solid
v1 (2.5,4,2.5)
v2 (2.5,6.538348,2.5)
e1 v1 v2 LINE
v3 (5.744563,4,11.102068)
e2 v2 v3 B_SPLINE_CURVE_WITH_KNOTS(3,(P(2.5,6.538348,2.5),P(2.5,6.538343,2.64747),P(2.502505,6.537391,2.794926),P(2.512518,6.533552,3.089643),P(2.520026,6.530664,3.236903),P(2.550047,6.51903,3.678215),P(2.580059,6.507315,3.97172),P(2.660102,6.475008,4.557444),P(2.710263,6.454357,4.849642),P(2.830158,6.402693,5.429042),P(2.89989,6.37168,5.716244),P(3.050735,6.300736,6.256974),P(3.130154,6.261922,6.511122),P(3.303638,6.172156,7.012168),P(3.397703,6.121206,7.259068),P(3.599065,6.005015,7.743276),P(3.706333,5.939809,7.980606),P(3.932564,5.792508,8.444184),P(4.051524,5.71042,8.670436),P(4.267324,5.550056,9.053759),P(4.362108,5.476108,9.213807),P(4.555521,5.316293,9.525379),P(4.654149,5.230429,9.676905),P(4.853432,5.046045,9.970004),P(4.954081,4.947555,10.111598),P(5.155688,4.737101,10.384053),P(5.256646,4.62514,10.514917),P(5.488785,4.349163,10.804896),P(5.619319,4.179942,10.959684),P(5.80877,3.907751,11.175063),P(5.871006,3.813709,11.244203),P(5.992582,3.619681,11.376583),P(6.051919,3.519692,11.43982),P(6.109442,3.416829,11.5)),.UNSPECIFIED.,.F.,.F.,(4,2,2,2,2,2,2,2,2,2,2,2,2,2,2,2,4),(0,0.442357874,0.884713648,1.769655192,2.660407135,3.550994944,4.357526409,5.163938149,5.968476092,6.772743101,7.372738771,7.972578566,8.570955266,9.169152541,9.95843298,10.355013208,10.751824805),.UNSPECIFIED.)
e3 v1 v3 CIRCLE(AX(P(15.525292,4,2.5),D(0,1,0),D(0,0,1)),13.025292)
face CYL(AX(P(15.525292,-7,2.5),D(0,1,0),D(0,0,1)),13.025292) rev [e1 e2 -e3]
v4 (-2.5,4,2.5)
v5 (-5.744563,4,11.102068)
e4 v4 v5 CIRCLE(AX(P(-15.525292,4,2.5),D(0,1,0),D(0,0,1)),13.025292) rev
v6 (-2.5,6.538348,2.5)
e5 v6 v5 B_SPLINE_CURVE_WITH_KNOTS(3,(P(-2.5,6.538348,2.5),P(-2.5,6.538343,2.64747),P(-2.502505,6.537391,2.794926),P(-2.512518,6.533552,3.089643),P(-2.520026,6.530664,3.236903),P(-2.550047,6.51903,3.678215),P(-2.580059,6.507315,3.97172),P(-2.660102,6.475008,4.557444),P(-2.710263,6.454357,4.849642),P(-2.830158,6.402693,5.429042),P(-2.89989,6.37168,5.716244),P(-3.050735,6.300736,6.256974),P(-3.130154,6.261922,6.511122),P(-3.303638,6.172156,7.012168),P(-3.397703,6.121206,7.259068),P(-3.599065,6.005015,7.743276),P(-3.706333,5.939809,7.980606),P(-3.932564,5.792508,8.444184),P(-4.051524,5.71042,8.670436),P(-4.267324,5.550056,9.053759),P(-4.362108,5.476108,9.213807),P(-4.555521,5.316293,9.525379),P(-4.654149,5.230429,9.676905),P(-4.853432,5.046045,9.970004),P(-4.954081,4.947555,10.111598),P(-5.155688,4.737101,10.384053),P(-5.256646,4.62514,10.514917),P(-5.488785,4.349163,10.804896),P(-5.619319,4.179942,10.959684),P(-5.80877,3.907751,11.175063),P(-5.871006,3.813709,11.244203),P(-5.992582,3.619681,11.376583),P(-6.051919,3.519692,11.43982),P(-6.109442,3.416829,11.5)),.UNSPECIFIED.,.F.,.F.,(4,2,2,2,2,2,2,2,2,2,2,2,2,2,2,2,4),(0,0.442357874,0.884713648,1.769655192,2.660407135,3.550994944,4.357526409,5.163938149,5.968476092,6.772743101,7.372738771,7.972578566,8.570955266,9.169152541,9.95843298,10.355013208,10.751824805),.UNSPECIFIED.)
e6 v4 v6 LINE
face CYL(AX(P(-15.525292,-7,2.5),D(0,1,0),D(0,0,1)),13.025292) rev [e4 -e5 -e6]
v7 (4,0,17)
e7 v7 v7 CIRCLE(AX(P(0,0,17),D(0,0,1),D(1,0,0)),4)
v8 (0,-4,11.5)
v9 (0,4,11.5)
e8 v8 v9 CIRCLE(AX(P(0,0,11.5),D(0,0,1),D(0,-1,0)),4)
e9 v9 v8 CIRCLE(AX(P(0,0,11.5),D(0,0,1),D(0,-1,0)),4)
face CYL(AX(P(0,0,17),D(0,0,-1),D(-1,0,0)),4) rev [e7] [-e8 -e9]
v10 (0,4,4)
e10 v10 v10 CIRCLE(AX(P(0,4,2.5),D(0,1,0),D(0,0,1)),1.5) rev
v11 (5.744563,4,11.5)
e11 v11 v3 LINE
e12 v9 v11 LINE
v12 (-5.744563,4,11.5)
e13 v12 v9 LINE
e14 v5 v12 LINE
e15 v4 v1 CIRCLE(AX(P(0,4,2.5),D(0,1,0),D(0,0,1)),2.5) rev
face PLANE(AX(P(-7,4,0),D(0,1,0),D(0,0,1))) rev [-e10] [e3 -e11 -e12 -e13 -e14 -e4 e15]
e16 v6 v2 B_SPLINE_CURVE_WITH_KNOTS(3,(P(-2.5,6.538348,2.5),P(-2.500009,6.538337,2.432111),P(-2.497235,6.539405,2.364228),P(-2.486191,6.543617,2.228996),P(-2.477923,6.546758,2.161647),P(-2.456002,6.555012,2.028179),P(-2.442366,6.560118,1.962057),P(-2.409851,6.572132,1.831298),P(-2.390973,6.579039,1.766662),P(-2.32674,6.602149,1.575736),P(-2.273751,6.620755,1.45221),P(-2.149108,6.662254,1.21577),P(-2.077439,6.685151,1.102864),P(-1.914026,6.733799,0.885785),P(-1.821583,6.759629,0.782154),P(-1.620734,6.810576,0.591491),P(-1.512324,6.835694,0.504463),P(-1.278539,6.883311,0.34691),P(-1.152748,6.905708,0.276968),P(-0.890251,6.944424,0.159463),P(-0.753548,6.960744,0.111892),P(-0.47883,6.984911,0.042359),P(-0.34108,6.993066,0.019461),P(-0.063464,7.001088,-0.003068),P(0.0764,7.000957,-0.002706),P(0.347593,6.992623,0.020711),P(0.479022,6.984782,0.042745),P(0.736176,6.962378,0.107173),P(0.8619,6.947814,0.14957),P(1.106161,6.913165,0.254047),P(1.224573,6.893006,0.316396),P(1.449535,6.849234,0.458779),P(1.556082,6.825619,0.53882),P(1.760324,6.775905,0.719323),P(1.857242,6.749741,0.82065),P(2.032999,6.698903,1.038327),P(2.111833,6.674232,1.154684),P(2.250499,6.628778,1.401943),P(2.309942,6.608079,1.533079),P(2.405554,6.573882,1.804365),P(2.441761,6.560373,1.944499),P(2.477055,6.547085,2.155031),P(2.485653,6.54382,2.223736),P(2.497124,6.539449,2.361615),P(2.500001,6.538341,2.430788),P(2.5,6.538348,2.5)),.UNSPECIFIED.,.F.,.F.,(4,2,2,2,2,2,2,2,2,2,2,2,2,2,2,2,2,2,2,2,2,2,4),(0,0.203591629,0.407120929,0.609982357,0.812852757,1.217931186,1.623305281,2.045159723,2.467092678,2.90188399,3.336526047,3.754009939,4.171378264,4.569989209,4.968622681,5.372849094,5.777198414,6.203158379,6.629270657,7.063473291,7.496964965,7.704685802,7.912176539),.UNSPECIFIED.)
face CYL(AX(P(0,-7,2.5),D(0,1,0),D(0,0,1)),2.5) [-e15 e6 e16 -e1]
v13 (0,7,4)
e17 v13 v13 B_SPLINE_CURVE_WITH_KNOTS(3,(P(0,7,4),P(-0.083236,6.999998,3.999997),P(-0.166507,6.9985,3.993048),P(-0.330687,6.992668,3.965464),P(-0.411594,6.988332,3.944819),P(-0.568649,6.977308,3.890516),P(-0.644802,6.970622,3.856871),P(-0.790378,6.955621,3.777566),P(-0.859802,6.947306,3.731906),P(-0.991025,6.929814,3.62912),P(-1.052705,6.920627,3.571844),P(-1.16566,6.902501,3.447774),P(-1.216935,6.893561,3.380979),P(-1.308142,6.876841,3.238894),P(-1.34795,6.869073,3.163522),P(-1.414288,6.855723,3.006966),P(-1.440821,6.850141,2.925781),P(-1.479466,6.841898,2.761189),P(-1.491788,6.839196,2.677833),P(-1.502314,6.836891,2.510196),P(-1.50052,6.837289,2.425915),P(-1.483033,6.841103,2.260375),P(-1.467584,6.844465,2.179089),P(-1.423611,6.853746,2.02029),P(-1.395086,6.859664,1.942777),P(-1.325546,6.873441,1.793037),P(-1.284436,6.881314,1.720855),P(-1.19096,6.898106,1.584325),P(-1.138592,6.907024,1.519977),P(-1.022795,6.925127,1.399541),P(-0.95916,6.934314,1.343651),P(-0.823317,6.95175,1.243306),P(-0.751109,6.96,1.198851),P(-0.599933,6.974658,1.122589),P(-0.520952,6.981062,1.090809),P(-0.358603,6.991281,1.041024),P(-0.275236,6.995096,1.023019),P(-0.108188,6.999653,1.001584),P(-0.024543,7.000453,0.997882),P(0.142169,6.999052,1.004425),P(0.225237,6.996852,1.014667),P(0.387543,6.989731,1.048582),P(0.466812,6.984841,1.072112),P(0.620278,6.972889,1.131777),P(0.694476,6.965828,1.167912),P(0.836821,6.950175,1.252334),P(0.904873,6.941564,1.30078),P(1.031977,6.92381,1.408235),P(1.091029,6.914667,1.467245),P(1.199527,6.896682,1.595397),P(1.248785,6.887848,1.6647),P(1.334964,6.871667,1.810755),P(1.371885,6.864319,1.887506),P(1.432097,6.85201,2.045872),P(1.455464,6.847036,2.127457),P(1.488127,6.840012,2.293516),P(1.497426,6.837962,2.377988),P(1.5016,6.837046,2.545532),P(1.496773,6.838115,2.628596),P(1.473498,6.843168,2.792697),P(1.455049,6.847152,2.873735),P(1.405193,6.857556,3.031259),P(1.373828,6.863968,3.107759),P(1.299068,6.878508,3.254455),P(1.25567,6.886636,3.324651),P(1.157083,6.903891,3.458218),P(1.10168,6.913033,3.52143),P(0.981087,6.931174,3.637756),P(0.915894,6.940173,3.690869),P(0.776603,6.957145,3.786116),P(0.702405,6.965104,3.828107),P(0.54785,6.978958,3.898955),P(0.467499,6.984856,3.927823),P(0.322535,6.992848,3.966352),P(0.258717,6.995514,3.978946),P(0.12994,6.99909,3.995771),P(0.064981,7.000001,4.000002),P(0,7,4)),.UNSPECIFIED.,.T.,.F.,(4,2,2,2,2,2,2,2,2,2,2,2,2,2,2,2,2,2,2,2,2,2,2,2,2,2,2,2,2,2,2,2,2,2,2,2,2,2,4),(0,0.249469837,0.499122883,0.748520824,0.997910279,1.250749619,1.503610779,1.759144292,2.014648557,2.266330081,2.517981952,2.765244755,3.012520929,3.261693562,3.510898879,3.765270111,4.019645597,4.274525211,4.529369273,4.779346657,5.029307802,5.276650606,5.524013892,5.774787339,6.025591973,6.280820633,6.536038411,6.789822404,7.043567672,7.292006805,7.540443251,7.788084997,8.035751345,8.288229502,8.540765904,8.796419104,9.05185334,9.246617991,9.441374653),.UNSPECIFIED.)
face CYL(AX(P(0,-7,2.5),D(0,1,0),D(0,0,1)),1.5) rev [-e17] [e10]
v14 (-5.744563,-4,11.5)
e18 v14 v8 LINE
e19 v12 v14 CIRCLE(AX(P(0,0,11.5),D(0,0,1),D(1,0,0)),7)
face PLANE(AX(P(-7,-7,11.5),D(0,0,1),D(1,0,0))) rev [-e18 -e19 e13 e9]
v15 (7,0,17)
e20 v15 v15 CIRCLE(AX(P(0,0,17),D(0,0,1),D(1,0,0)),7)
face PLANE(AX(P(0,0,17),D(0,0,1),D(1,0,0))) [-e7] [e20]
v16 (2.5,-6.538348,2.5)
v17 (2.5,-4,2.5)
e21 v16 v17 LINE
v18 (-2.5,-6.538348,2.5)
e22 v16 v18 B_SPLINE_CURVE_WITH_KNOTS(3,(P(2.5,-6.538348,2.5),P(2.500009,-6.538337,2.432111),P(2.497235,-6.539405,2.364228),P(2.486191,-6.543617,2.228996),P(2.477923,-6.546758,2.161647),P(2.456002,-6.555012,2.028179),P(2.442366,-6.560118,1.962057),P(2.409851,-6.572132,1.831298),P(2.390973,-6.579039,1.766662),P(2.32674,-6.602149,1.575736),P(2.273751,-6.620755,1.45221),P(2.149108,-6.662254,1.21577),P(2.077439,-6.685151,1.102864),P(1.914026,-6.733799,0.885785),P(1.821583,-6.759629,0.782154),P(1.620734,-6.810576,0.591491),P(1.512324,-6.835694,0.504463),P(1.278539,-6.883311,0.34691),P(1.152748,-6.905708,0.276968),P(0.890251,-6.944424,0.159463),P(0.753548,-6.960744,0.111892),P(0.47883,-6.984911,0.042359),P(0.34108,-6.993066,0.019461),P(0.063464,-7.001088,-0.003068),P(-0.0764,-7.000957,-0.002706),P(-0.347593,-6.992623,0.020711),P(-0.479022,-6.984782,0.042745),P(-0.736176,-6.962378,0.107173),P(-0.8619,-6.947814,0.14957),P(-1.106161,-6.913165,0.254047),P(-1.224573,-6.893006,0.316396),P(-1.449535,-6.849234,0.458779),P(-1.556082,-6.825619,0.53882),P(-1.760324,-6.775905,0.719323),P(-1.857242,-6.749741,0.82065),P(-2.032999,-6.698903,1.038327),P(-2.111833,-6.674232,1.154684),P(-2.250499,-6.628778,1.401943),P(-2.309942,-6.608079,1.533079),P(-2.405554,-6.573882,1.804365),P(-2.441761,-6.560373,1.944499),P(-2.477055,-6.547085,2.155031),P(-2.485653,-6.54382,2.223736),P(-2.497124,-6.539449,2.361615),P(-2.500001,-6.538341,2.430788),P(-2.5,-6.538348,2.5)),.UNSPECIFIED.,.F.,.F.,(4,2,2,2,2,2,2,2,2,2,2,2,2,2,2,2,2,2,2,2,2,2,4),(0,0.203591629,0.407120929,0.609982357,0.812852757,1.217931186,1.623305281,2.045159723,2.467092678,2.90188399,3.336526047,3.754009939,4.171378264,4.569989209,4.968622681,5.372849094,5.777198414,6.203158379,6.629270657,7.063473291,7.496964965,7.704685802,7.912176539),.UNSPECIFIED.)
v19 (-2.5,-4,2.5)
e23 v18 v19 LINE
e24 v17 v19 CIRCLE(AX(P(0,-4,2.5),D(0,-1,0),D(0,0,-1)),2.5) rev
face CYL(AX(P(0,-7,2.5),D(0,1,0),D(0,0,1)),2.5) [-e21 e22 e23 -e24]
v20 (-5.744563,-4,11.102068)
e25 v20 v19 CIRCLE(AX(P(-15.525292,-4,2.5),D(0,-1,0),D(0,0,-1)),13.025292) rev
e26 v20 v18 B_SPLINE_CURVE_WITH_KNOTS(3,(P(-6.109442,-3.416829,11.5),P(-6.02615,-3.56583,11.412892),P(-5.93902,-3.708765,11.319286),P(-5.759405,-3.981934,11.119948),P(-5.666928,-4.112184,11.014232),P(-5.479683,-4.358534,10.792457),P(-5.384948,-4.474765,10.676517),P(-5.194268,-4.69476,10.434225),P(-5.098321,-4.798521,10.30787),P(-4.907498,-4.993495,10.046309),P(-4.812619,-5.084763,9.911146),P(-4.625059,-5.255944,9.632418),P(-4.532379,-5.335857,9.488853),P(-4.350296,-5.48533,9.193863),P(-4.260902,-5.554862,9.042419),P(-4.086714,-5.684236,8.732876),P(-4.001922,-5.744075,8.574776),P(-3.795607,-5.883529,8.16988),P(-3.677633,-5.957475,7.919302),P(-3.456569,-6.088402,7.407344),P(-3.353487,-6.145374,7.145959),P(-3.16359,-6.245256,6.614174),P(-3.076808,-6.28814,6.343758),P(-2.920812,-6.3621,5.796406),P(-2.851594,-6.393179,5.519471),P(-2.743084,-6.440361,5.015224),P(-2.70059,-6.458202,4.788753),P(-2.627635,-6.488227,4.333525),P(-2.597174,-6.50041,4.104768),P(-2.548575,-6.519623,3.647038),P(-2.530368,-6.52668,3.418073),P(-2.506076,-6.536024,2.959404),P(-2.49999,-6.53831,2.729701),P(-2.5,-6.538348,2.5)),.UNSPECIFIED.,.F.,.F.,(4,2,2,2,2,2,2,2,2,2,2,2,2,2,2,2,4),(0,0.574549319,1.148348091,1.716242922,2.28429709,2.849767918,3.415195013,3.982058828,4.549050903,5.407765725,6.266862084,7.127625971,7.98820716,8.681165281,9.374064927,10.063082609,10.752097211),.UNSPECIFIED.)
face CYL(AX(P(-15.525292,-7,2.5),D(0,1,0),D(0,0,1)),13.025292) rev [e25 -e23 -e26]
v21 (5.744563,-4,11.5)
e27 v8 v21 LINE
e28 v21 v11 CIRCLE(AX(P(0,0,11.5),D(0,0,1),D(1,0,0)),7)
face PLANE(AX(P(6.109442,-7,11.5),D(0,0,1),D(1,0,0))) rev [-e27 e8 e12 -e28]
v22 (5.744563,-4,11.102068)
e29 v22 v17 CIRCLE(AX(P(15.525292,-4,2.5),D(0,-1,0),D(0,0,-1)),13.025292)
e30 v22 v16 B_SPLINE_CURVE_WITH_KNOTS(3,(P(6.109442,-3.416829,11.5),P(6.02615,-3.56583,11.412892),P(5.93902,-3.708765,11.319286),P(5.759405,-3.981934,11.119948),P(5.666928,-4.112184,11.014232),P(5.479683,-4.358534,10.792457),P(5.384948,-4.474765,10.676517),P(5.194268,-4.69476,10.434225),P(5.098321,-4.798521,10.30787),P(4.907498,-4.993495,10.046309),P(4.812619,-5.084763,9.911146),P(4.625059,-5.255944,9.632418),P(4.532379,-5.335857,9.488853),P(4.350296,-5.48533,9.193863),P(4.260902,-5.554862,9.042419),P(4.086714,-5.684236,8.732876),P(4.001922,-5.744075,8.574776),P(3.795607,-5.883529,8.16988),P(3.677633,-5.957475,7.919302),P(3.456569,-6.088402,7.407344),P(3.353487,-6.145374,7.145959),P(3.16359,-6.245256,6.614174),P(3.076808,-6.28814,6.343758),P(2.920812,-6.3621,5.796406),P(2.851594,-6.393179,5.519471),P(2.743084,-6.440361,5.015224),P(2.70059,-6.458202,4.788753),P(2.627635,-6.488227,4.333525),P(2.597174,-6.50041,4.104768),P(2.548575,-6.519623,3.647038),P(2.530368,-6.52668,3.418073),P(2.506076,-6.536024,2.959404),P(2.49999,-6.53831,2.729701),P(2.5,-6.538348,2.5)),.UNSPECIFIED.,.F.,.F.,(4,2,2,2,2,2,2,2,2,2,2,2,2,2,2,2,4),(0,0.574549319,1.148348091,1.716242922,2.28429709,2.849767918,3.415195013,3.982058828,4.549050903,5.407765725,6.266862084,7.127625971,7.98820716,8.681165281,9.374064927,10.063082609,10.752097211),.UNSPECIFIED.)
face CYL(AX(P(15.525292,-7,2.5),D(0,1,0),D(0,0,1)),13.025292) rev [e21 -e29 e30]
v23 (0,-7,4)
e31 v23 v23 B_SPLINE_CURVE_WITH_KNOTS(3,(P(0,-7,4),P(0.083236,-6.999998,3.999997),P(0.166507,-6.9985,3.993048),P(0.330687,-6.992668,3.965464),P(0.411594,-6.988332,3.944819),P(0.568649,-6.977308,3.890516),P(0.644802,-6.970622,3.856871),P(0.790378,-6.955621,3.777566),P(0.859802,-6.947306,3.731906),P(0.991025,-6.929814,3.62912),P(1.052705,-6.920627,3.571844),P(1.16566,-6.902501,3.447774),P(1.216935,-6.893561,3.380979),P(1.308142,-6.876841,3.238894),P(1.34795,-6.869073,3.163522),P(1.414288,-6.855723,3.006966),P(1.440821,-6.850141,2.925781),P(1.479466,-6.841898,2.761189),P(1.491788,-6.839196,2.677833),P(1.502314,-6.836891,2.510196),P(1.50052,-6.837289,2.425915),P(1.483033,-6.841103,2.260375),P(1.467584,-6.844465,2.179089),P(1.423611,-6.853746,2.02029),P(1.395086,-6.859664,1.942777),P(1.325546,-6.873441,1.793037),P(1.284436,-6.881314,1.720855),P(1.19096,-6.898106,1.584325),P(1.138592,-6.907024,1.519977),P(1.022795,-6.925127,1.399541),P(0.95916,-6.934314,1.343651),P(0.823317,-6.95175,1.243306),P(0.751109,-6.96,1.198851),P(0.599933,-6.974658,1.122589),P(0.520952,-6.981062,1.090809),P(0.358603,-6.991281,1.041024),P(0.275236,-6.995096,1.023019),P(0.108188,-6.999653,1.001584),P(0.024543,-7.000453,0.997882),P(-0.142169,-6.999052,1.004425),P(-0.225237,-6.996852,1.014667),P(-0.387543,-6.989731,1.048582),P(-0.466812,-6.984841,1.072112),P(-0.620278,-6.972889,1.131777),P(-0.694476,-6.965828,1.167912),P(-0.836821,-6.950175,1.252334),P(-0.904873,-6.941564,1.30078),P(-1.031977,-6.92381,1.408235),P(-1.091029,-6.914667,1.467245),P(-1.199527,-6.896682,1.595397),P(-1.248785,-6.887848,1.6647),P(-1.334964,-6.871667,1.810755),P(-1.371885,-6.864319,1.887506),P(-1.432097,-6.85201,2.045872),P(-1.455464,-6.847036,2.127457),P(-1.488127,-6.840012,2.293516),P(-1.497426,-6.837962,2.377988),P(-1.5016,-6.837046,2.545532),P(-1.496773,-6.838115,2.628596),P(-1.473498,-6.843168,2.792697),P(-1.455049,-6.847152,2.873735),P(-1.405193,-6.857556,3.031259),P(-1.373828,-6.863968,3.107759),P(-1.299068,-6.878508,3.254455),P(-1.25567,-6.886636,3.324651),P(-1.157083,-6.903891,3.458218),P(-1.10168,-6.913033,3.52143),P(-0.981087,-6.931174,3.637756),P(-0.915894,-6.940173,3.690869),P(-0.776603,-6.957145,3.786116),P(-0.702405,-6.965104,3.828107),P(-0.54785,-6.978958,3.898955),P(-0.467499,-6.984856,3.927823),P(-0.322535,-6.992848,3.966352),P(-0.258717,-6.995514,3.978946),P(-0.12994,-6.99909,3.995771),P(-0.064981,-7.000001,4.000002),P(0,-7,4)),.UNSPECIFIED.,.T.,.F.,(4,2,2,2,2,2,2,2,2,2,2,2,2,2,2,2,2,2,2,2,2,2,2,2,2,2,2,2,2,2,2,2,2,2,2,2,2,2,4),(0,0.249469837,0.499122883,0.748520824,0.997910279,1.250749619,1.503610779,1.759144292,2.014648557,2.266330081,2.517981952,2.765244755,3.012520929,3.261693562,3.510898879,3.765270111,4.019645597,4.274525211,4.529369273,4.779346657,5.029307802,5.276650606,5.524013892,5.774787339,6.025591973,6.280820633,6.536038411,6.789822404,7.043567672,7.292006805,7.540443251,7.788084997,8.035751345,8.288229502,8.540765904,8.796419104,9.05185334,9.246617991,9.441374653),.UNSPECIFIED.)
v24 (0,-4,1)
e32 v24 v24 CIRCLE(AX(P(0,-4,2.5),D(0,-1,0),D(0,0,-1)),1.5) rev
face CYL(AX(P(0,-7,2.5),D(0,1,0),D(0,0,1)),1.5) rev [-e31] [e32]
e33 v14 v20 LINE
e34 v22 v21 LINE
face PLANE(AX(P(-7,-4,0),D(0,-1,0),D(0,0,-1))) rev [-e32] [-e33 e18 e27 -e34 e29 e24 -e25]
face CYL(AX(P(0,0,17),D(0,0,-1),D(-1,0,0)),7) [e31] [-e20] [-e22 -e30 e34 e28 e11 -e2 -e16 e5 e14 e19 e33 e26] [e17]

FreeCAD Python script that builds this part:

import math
import FreeCAD as App
import Part
import Sketcher


def add_polygon(sketch, points):
    """Adds a closed chain of lines whose ends are joined by coincident constraints."""
    first, n = sketch.GeometryCount, len(points)
    for a, b in zip(points, points[1:] + points[:1]):
        sketch.addGeometry(Part.LineSegment(App.Vector(*a, 0), App.Vector(*b, 0)), False)
    for i in range(n):
        sketch.addConstraint(Sketcher.Constraint("Coincident", first + i, 2, first + (i + 1) % n, 1))

doc = App.newDocument("Part")
body = doc.addObject("PartDesign::Body", "Body")

# Sketch on XY plane
sketch1 = doc.addObject("Sketcher::SketchObject", "Sketch")
body.addObject(sketch1)
sketch1.AttachmentSupport = (doc.XY_Plane, [""])
sketch1.MapMode = "FlatFace"
sketch1.addGeometry(Part.Circle(App.Vector(0, 0, 0), App.Vector(0, 0, 1), 7), False)
sketch1.addGeometry(Part.Circle(App.Vector(0, 0, 0), App.Vector(0, 0, 1), 4), False)
sketch1.addConstraint(Sketcher.Constraint("Coincident", 0, 3, -1, 1))
sketch1.addConstraint(Sketcher.Constraint("Coincident", 1, 3, -1, 1))
sketch1.addConstraint(Sketcher.Constraint("Diameter", 0, 14.0))
sketch1.addConstraint(Sketcher.Constraint("Diameter", 1, 8.0))
pad1 = doc.addObject("PartDesign::Pad", "Pad")
body.addObject(pad1)
pad1.Profile = sketch1
pad1.Length = 17

# Sketch on XZ plane
sketch2 = doc.addObject("Sketcher::SketchObject", "Sketch001")
body.addObject(sketch2)
sketch2.AttachmentSupport = (doc.XZ_Plane, [""])
sketch2.MapMode = "FlatFace"
sketch2.addGeometry(Part.Circle(App.Vector(0, 2.5, 0), App.Vector(0, 0, 1), 1.5), False)
sketch2.addGeometry(Part.LineSegment(App.Vector(-7, 0, 0), App.Vector(-7, 11.5, 0)), False)
sketch2.addGeometry(Part.LineSegment(App.Vector(-7, 11.5, 0), App.Vector(-6.1, 11.5, 0)), False)
sketch2.addGeometry(Part.ArcOfCircle(Part.Circle(App.Vector(-15.5, 2.5, 0), App.Vector(0, 0, 1), 13), math.radians(0), math.radians(44)), False)
sketch2.addGeometry(Part.ArcOfCircle(Part.Circle(App.Vector(0, 2.5, 0), App.Vector(0, 0, 1), 2.5), math.radians(180), math.radians(360)), False)
sketch2.addGeometry(Part.ArcOfCircle(Part.Circle(App.Vector(15.5, 2.5, 0), App.Vector(0, 0, 1), 13), math.radians(136), math.radians(180)), False)
sketch2.addGeometry(Part.LineSegment(App.Vector(6.1, 11.5, 0), App.Vector(7, 11.5, 0)), False)
sketch2.addGeometry(Part.LineSegment(App.Vector(7, 11.5, 0), App.Vector(7, 0, 0)), False)
sketch2.addGeometry(Part.LineSegment(App.Vector(7, 0, 0), App.Vector(0, -1, 0)), False)
sketch2.addGeometry(Part.LineSegment(App.Vector(0, -1, 0), App.Vector(-7, 0, 0)), False)
sketch2.addConstraint(Sketcher.Constraint("Coincident", 1, 2, 2, 1))
sketch2.addConstraint(Sketcher.Constraint("Coincident", 2, 2, 3, 2))
sketch2.addConstraint(Sketcher.Constraint("Tangent", 3, 1, 4, 1))
sketch2.addConstraint(Sketcher.Constraint("Tangent", 4, 2, 5, 2))
sketch2.addConstraint(Sketcher.Constraint("Coincident", 5, 1, 6, 1))
sketch2.addConstraint(Sketcher.Constraint("Coincident", 6, 2, 7, 1))
sketch2.addConstraint(Sketcher.Constraint("Coincident", 7, 2, 8, 1))
sketch2.addConstraint(Sketcher.Constraint("Coincident", 8, 2, 9, 1))
sketch2.addConstraint(Sketcher.Constraint("Coincident", 9, 2, 1, 1))
sketch2.addConstraint(Sketcher.Constraint("Vertical", 1))
sketch2.addConstraint(Sketcher.Constraint("Horizontal", 2))
sketch2.addConstraint(Sketcher.Constraint("Horizontal", 6))
sketch2.addConstraint(Sketcher.Constraint("Vertical", 7))
sketch2.addConstraint(Sketcher.Constraint("Coincident", 4, 3, 0, 3))
sketch2.addConstraint(Sketcher.Constraint("Equal", 3, 5))
sketch2.addConstraint(Sketcher.Constraint("Symmetric", 7, 2, 9, 2, -1, 1))
sketch2.addConstraint(Sketcher.Constraint("Symmetric", 3, 3, 5, 3, -2))
sketch2.addConstraint(Sketcher.Constraint("PointOnObject", 7, 2, -1))
sketch2.addConstraint(Sketcher.Constraint("PointOnObject", 8, 2, -2))
sketch2.addConstraint(Sketcher.Constraint("Horizontal", 0, 3, 3, 3))
sketch2.addConstraint(Sketcher.Constraint("Horizontal", 2, 2, 5, 1))
sketch2.addConstraint(Sketcher.Constraint("Diameter", 0, 3.0))
sketch2.addConstraint(Sketcher.Constraint("Radius", 4, 2.5))
sketch2.addConstraint(Sketcher.Constraint("DistanceY", 1, 1, 1, 2, 11.5))
sketch2.addConstraint(Sketcher.Constraint("DistanceX", 1, 2, -1, 1, 7.0))
sketch2.addConstraint(Sketcher.Constraint("DistanceY", 8, 2, -1, 1, 1.0))
sketch2.addConstraint(Sketcher.Constraint("DistanceY", 0, 3, 1, 2, 9.0))
sketch2.addConstraint(Sketcher.Constraint("Radius", 3, 13.025292))
pocket1 = doc.addObject("PartDesign::Pocket", "Pocket")
body.addObject(pocket1)
pocket1.Profile = sketch2
pocket1.Type = "ThroughAll"
pocket1.Midplane = True

# Sketch on YZ plane
sketch3 = doc.addObject("Sketcher::SketchObject", "Sketch002")
body.addObject(sketch3)
sketch3.AttachmentSupport = (doc.YZ_Plane, [""])
sketch3.MapMode = "FlatFace"
add_polygon(sketch3, [(4, 12), (-4, 12), (-4, 0), (4, 0)])  # lines 0-3
sketch3.addConstraint(Sketcher.Constraint("Horizontal", 0))
sketch3.addConstraint(Sketcher.Constraint("Vertical", 1))
sketch3.addConstraint(Sketcher.Constraint("Horizontal", 2))
sketch3.addConstraint(Sketcher.Constraint("Vertical", 3))
sketch3.addConstraint(Sketcher.Constraint("Symmetric", 1, 2, 2, 2, -1, 1))
sketch3.addConstraint(Sketcher.Constraint("DistanceX", 0, 2, 0, 1, 8.0))
sketch3.addConstraint(Sketcher.Constraint("DistanceY", 1, 2, 1, 1, 11.5))
pocket2 = doc.addObject("PartDesign::Pocket", "Pocket001")
body.addObject(pocket2)
pocket2.Profile = sketch3
pocket2.Type = "ThroughAll"
pocket2.Midplane = True

doc.recompute()
